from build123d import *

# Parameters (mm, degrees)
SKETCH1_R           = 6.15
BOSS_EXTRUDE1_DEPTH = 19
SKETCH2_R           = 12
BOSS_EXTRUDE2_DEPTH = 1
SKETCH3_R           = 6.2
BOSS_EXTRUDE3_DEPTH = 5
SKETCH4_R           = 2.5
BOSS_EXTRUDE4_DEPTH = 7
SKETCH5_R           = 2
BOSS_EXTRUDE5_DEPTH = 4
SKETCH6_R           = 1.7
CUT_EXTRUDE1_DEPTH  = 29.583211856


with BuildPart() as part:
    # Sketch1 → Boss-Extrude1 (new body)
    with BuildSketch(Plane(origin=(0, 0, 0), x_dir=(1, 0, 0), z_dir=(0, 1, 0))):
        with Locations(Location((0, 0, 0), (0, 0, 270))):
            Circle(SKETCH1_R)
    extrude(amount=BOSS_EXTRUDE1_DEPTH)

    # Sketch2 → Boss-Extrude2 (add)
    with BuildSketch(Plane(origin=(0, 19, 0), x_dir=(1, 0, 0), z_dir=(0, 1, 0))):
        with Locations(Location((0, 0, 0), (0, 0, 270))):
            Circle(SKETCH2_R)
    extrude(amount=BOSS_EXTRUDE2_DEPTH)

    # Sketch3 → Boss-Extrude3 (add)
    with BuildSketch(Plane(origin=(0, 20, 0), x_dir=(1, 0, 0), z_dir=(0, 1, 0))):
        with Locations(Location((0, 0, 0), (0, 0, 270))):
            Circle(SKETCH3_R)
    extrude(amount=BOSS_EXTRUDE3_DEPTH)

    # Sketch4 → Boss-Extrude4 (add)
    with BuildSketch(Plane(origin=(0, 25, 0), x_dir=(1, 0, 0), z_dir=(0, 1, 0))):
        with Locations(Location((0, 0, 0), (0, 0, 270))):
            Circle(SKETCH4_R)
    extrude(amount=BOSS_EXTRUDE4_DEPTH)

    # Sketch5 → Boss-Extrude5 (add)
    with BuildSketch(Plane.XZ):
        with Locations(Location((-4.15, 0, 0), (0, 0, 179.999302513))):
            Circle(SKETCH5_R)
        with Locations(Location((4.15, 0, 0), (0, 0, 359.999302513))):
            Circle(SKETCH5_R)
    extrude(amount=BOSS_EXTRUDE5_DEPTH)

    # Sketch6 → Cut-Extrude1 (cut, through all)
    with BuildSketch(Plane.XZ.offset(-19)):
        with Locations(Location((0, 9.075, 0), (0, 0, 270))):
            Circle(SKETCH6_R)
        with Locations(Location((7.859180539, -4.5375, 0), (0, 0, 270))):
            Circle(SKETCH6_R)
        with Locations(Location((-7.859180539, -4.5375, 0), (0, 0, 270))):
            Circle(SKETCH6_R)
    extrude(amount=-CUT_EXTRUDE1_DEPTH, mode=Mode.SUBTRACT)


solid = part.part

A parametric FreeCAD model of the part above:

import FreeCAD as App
import Part
import Sketcher
Q = App.Units.Quantity

doc = App.newDocument("Part")
body = doc.addObject("PartDesign::Body", "Body")

# Sketch on XZ plane
sketch1 = doc.addObject("Sketcher::SketchObject", "Sketch")
body.addObject(sketch1)
sketch1.AttachmentSupport = (doc.XZ_Plane, [""])
sketch1.MapMode = "FlatFace"
sketch1.addGeometry(Part.Circle(App.Vector(0, 0, 0), App.Vector(0, 0, 1), 6), False)
sketch1.addConstraint([
    Sketcher.Constraint("Coincident", 0, 3, -1, 1),
    Sketcher.Constraint("Diameter", 0, Q("12.3 mm")),
])
pad1 = doc.addObject("PartDesign::Pad", "Pad")
body.addObject(pad1)
pad1.Profile = sketch1
pad1.Length = 19
pad1.Reversed = True

# Sketch on XZ plane
sketch2 = doc.addObject("Sketcher::SketchObject", "Sketch001")
body.addObject(sketch2)
sketch2.AttachmentSupport = (doc.XZ_Plane, [""])
sketch2.MapMode = "FlatFace"
sketch2.AttachmentOffset = App.Placement(App.Vector(0, 0, -19), App.Rotation())
sketch2.addGeometry(Part.Circle(App.Vector(0, 0, 0), App.Vector(0, 0, 1), 12), False)
sketch2.addConstraint([
    Sketcher.Constraint("Coincident", 0, 3, -1, 1),
    Sketcher.Constraint("Diameter", 0, Q("24 mm")),
])
pad2 = doc.addObject("PartDesign::Pad", "Pad001")
body.addObject(pad2)
pad2.Profile = sketch2
pad2.Length = 1
pad2.Reversed = True

# Sketch on XZ plane
sketch3 = doc.addObject("Sketcher::SketchObject", "Sketch002")
body.addObject(sketch3)
sketch3.AttachmentSupport = (doc.XZ_Plane, [""])
sketch3.MapMode = "FlatFace"
sketch3.AttachmentOffset = App.Placement(App.Vector(0, 0, -20), App.Rotation())
sketch3.addGeometry(Part.Circle(App.Vector(0, 0, 0), App.Vector(0, 0, 1), 6), False)
sketch3.addConstraint([
    Sketcher.Constraint("Coincident", 0, 3, -1, 1),
    Sketcher.Constraint("Diameter", 0, Q("12.4 mm")),
])
pad3 = doc.addObject("PartDesign::Pad", "Pad002")
body.addObject(pad3)
pad3.Profile = sketch3
pad3.Length = 5
pad3.Reversed = True

# Sketch on XZ plane
sketch4 = doc.addObject("Sketcher::SketchObject", "Sketch003")
body.addObject(sketch4)
sketch4.AttachmentSupport = (doc.XZ_Plane, [""])
sketch4.MapMode = "FlatFace"
sketch4.AttachmentOffset = App.Placement(App.Vector(0, 0, -25), App.Rotation())
sketch4.addGeometry(Part.Circle(App.Vector(0, 0, 0), App.Vector(0, 0, 1), 2.5), False)
sketch4.addConstraint([
    Sketcher.Constraint("Coincident", 0, 3, -1, 1),
    Sketcher.Constraint("Diameter", 0, Q("5 mm")),
])
pad4 = doc.addObject("PartDesign::Pad", "Pad003")
body.addObject(pad4)
pad4.Profile = sketch4
pad4.Length = 7
pad4.Reversed = True

# Sketch on XZ plane
sketch5 = doc.addObject("Sketcher::SketchObject", "Sketch004")
body.addObject(sketch5)
sketch5.AttachmentSupport = (doc.XZ_Plane, [""])
sketch5.MapMode = "FlatFace"
sketch5.addGeometry([
    Part.Circle(App.Vector(-4.2, 0, 0), App.Vector(0, 0, 1), 2),
    Part.Circle(App.Vector(4.2, 0, 0), App.Vector(0, 0, 1), 2),
], False)
sketch5.addConstraint([
    Sketcher.Constraint("Equal", 0, 1),
    Sketcher.Constraint("Symmetric", 0, 3, 1, 3, -1, 1),
    Sketcher.Constraint("PointOnObject", 0, 3, -1),
    Sketcher.Constraint("Diameter", 0, Q("4 mm")),
    Sketcher.Constraint("DistanceX", 0, 3, 1, 3, Q("8.3 mm")),
])
pad5 = doc.addObject("PartDesign::Pad", "Pad004")
body.addObject(pad5)
pad5.Profile = sketch5
pad5.Length = 4

# Sketch on XZ plane
sketch6 = doc.addObject("Sketcher::SketchObject", "Sketch005")
body.addObject(sketch6)
sketch6.AttachmentSupport = (doc.XZ_Plane, [""])
sketch6.MapMode = "FlatFace"
sketch6.AttachmentOffset = App.Placement(App.Vector(0, 0, -19), App.Rotation())
sketch6.addGeometry([
    Part.Circle(App.Vector(0, 9.1, 0), App.Vector(0, 0, 1), 1.7),
    Part.Circle(App.Vector(7.9, -4.5, 0), App.Vector(0, 0, 1), 1.7),
    Part.Circle(App.Vector(-7.9, -4.5, 0), App.Vector(0, 0, 1), 1.7),
], False)
sketch6.addConstraint([
    Sketcher.Constraint("Equal", 0, 1),
    Sketcher.Constraint("Equal", 1, 2),
    Sketcher.Constraint("Symmetric", 1, 3, 2, 3, -2),
    Sketcher.Constraint("PointOnObject", 0, 3, -2),
    Sketcher.Constraint("Diameter", 0, Q("3.4 mm")),
    Sketcher.Constraint("DistanceY", -1, 1, 0, 3, Q("9.075 mm")),
    Sketcher.Constraint("DistanceY", 1, 3, -1, 1, Q("4.5375 mm")),
    Sketcher.Constraint("DistanceX", -1, 1, 1, 3, Q("7.859181 mm")),
])
pocket1 = doc.addObject("PartDesign::Pocket", "Pocket")
body.addObject(pocket1)
pocket1.Profile = sketch6
pocket1.Type = "ThroughAll"

doc.recompute()
